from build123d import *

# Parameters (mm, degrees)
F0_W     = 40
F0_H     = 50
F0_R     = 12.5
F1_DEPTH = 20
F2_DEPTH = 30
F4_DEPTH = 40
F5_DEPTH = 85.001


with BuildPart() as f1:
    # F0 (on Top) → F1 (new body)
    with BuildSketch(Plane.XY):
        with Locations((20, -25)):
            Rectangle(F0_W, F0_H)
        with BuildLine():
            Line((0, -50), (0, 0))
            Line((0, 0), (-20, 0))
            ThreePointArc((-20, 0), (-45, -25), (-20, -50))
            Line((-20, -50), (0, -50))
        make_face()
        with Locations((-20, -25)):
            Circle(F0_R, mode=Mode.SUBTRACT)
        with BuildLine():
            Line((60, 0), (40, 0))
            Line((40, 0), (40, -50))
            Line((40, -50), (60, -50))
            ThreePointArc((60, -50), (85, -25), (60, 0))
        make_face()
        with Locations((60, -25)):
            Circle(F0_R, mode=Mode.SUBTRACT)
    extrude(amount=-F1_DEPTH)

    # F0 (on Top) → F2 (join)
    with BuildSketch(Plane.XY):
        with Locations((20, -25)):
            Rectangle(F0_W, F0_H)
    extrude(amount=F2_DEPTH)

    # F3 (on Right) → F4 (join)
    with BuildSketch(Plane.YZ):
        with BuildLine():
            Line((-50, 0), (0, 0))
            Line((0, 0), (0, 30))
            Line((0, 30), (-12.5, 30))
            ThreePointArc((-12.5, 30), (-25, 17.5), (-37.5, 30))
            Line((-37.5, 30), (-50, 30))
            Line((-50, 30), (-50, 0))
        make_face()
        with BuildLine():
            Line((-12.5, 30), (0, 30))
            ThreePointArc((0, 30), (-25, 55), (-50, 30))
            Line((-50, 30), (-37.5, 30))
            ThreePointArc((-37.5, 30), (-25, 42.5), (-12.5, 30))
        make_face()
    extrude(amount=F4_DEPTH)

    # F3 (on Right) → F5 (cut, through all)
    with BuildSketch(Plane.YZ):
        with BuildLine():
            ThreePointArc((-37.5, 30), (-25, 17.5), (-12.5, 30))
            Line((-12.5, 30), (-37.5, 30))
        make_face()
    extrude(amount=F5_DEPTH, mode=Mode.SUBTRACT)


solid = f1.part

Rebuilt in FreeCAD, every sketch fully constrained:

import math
import FreeCAD as App
import Part
import Sketcher

V = App.Vector


def add_polygon(sketch, points):
    """Adds a closed chain of lines whose ends are joined by coincident constraints."""
    first, n = sketch.GeometryCount, len(points)
    for a, b in zip(points, points[1:] + points[:1]):
        sketch.addGeometry(Part.LineSegment(App.Vector(*a, 0), App.Vector(*b, 0)), False)
    for i in range(n):
        sketch.addConstraint(Sketcher.Constraint("Coincident", first + i, 2, first + (i + 1) % n, 1))

doc = App.newDocument("Part")
params = doc.addObject("Spreadsheet::Sheet", "Params")
for row, (alias, value) in enumerate([
    ("sketch1_diameter", "25 mm"),
    ("sketch1_radius", "25 mm"),
    ("sketch1_width", "80 mm"),
    ("pad1_length", "20 mm"),
    ("sketch2_width", "40 mm"),
    ("sketch2_height", "50 mm"),
    ("pad2_length", "30 mm"),
    ("sketch3_diameter", "25 mm"),
    ("sketch3_radius", "25 mm"),
    ("sketch3_height", "30 mm"),
    ("pad3_length", "40 mm"),
    ("sketch4_radius", "12.5 mm"),
], start=1):
    params.set(f"A{row}", alias)
    params.set(f"B{row}", "=" + value)
    params.setAlias(f"B{row}", alias)

body = doc.addObject("PartDesign::Body", "Body")

# Sketch on XY plane
sketch1 = doc.addObject("Sketcher::SketchObject", "Sketch")
body.addObject(sketch1)
sketch1.AttachmentSupport = (doc.XY_Plane, [""])
sketch1.MapMode = "FlatFace"
sketch1.addGeometry([
    Part.LineSegment(V(-20, -50, 0), V(60, -50, 0)),  # 0
    Part.ArcOfCircle(Part.Circle(V(60, -25, 0), V(0, 0, 1), 25), math.radians(-90), math.radians(90)),  # 1
    Part.LineSegment(V(60, 0, 0), V(-20, 0, 0)),  # 2
    Part.ArcOfCircle(Part.Circle(V(-20, -25, 0), V(0, 0, 1), 25), math.radians(90), math.radians(270)),  # 3
    Part.Circle(V(-20, -25, 0), V(0, 0, 1), 12),  # 4
    Part.Circle(V(60, -25, 0), V(0, 0, 1), 12),  # 5
], False)
sketch1.addConstraint([
    Sketcher.Constraint("Tangent", 0, 2, 1, 1),
    Sketcher.Constraint("Tangent", 1, 2, 2, 1),
    Sketcher.Constraint("Tangent", 2, 2, 3, 1),
    Sketcher.Constraint("Tangent", 3, 2, 0, 1),
    Sketcher.Constraint("Horizontal", 0),
    Sketcher.Constraint("Horizontal", 2),
    Sketcher.Constraint("Coincident", 4, 3, 3, 3),
    Sketcher.Constraint("Coincident", 5, 3, 1, 3),
    Sketcher.Constraint("Equal", 4, 5),
    Sketcher.Constraint("PointOnObject", 1, 2, -1),
    Sketcher.Constraint("Diameter", 4, 25.0),
    Sketcher.Constraint("Radius", 1, 25.0),
    Sketcher.Constraint("DistanceX", 0, 1, 0, 2, 80.0),
    Sketcher.Constraint("DistanceX", -1, 1, 1, 3, 60.0),
])
sketch1.setExpression("Constraints[10]", "Params.sketch1_diameter")
sketch1.setExpression("Constraints[11]", "Params.sketch1_radius")
sketch1.setExpression("Constraints[12]", "Params.sketch1_width")
pad1 = doc.addObject("PartDesign::Pad", "Pad")
body.addObject(pad1)
pad1.Profile = sketch1
pad1.setExpression("Length", "Params.pad1_length")
pad1.Reversed = True

# Sketch on XY plane
sketch2 = doc.addObject("Sketcher::SketchObject", "Sketch001")
body.addObject(sketch2)
sketch2.AttachmentSupport = (doc.XY_Plane, [""])
sketch2.MapMode = "FlatFace"
add_polygon(sketch2, [(0, 0), (0, -50), (40, -50), (40, 0)])  # lines 0-3
sketch2.addConstraint([
    Sketcher.Constraint("Vertical", 0),
    Sketcher.Constraint("Horizontal", 1),
    Sketcher.Constraint("Vertical", 2),
    Sketcher.Constraint("Horizontal", 3),
    Sketcher.Constraint("Coincident", 3, 2, -1, 1),
    Sketcher.Constraint("DistanceX", 1, 1, 1, 2, 40.0),
    Sketcher.Constraint("DistanceY", 0, 2, 0, 1, 50.0),
])
sketch2.setExpression("Constraints[9]", "Params.sketch2_width")
sketch2.setExpression("Constraints[10]", "Params.sketch2_height")
pad2 = doc.addObject("PartDesign::Pad", "Pad001")
body.addObject(pad2)
pad2.Profile = sketch2
pad2.setExpression("Length", "Params.pad2_length")

# Sketch on YZ plane
sketch3 = doc.addObject("Sketcher::SketchObject", "Sketch002")
body.addObject(sketch3)
sketch3.AttachmentSupport = (doc.YZ_Plane, [""])
sketch3.MapMode = "FlatFace"
sketch3.addGeometry([
    Part.LineSegment(V(-50, 0, 0), V(0, 0, 0)),  # 0
    Part.LineSegment(V(0, 0, 0), V(0, 30, 0)),  # 1
    Part.ArcOfCircle(Part.Circle(V(-25, 30, 0), V(0, 0, 1), 25), math.radians(0), math.radians(180)),  # 2
    Part.LineSegment(V(-50, 30, 0), V(-50, 0, 0)),  # 3
    Part.Circle(V(-25, 30, 0), V(0, 0, 1), 12),  # 4
], False)
sketch3.addConstraint([
    Sketcher.Constraint("Coincident", 0, 2, 1, 1),
    Sketcher.Constraint("Tangent", 1, 2, 2, 1),
    Sketcher.Constraint("Tangent", 2, 2, 3, 1),
    Sketcher.Constraint("Coincident", 3, 2, 0, 1),
    Sketcher.Constraint("Horizontal", 0),
    Sketcher.Constraint("Vertical", 1),
    Sketcher.Constraint("Vertical", 3),
    Sketcher.Constraint("Coincident", 0, 2, -1, 1),
    Sketcher.Constraint("Coincident", 4, 3, 2, 3),
    Sketcher.Constraint("Diameter", 4, 25.0),
    Sketcher.Constraint("Radius", 2, 25.0),
    Sketcher.Constraint("DistanceY", 1, 1, 1, 2, 30.0),
])
sketch3.setExpression("Constraints[9]", "Params.sketch3_diameter")
sketch3.setExpression("Constraints[10]", "Params.sketch3_radius")
sketch3.setExpression("Constraints[11]", "Params.sketch3_height")
pad3 = doc.addObject("PartDesign::Pad", "Pad002")
body.addObject(pad3)
pad3.Profile = sketch3
pad3.setExpression("Length", "Params.pad3_length")

# Sketch on YZ plane
sketch4 = doc.addObject("Sketcher::SketchObject", "Sketch003")
body.addObject(sketch4)
sketch4.AttachmentSupport = (doc.YZ_Plane, [""])
sketch4.MapMode = "FlatFace"
sketch4.addGeometry([
    Part.ArcOfCircle(Part.Circle(V(-25, 30, 0), V(0, 0, 1), 12), math.radians(180), math.radians(360)),
    Part.LineSegment(V(-12, 30, 0), V(-38, 30, 0)),
], False)
sketch4.addConstraint([
    Sketcher.Constraint("Coincident", 0, 1, 1, 2),
    Sketcher.Constraint("Coincident", 1, 1, 0, 2),
    Sketcher.Constraint("Horizontal", 1),
    Sketcher.Constraint("Radius", 0, 12.5),
    Sketcher.Constraint("DistanceX", 0, 3, -1, 1, 25.0),
    Sketcher.Constraint("DistanceY", -1, 1, 0, 3, 30.0),
    Sketcher.Constraint("DistanceY", -1, 1, 0, 1, 30.0),
])
sketch4.setExpression("Constraints[3]", "Params.sketch4_radius")
pocket1 = doc.addObject("PartDesign::Pocket", "Pocket")
body.addObject(pocket1)
pocket1.Profile = sketch4
pocket1.Type = "ThroughAll"
pocket1.Reversed = True

doc.recompute()
